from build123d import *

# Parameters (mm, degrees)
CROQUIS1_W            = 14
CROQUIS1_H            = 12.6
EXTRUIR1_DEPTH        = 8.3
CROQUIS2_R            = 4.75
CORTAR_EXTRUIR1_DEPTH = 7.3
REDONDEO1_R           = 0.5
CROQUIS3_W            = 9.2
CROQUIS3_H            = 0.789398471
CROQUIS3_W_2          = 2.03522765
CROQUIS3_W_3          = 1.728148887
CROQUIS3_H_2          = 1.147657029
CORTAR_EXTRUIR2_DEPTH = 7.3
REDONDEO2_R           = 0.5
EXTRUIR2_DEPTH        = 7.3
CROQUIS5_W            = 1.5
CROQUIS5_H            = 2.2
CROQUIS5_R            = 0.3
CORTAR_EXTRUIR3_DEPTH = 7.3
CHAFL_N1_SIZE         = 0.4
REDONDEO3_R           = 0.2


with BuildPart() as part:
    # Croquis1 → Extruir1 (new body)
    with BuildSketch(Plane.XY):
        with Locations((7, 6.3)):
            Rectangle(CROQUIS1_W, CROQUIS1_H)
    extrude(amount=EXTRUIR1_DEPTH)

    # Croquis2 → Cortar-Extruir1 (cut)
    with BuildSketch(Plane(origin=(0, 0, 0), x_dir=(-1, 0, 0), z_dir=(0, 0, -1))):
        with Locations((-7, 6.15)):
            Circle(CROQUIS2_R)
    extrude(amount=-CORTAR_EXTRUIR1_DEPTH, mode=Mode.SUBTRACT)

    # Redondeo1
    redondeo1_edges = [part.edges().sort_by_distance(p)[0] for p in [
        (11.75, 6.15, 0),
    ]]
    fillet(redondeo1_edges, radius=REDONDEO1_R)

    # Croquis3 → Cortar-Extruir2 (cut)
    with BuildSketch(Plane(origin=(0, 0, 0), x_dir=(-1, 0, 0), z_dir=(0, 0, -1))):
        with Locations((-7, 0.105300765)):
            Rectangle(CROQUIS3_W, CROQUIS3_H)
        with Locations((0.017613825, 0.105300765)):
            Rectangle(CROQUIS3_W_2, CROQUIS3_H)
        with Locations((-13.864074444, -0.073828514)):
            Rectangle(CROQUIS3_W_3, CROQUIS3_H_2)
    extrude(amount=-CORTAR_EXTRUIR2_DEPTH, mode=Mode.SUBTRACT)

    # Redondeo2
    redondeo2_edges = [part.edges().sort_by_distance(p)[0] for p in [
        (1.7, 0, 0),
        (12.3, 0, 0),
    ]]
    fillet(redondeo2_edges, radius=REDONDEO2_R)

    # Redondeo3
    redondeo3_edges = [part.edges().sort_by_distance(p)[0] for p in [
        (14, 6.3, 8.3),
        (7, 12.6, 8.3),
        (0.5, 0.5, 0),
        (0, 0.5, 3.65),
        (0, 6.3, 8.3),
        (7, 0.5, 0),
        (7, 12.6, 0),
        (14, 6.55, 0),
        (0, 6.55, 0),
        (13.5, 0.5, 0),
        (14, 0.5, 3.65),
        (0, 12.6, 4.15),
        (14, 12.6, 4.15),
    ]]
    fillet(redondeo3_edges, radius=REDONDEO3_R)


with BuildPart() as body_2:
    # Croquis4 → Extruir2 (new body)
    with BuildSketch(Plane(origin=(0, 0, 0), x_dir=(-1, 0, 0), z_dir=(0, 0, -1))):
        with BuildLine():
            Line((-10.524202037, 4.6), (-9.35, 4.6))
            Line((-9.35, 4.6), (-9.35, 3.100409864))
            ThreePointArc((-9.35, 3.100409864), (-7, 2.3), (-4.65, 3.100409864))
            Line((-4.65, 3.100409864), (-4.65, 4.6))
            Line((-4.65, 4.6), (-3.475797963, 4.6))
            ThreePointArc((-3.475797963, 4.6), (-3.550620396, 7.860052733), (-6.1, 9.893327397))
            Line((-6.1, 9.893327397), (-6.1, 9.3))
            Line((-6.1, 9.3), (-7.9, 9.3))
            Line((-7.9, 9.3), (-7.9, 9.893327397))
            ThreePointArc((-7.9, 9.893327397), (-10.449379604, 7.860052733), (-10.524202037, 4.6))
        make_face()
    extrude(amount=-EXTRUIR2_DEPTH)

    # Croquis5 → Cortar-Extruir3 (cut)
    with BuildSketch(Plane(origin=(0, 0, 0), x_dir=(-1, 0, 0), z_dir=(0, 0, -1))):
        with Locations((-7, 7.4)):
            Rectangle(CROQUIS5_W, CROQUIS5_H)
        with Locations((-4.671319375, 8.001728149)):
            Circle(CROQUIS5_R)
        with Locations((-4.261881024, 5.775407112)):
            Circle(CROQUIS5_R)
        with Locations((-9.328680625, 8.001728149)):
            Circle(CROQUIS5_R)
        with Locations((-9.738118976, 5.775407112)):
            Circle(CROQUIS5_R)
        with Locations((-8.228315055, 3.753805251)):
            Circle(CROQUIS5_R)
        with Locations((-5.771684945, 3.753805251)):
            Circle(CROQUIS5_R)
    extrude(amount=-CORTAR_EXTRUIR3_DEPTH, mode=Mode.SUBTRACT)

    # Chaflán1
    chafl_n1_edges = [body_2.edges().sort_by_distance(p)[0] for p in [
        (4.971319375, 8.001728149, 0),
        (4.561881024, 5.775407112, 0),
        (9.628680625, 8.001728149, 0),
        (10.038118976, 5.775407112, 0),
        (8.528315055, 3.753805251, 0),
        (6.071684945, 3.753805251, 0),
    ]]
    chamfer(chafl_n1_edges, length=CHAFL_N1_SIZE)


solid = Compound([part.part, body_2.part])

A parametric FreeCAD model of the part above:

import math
import FreeCAD as App
import Part
import Sketcher


def edges_at(feature, points):
    """Names of the edges that pass closest to the given points."""
    edges = feature.Shape.Edges
    near = lambda p: min(range(len(edges)), key=lambda i: edges[i].distToShape(Part.Vertex(*p))[0])
    return sorted({f"Edge{near(p) + 1}" for p in points})

doc = App.newDocument("Part")
body = doc.addObject("PartDesign::Body", "Body")

sketch1 = body.newObject("Sketcher::SketchObject", "Sketch")
sketch1.AttachmentSupport = (doc.getObject("XY_Plane"), [""])
sketch1.MapMode = "FlatFace"
sketch1.addGeometry(Part.LineSegment(App.Vector(0, 13, 0), App.Vector(0, 0, 0)), False)
sketch1.addGeometry(Part.LineSegment(App.Vector(0, 0, 0), App.Vector(14, 0, 0)), False)
sketch1.addGeometry(Part.LineSegment(App.Vector(14, 0, 0), App.Vector(14, 13, 0)), False)
sketch1.addGeometry(Part.LineSegment(App.Vector(14, 13, 0), App.Vector(0, 13, 0)), False)
sketch1.addConstraint(Sketcher.Constraint("Coincident", 0, 2, 1, 1))
sketch1.addConstraint(Sketcher.Constraint("Coincident", 1, 2, 2, 1))
sketch1.addConstraint(Sketcher.Constraint("Coincident", 2, 2, 3, 1))
sketch1.addConstraint(Sketcher.Constraint("Coincident", 3, 2, 0, 1))
sketch1.addConstraint(Sketcher.Constraint("Vertical", 0))
sketch1.addConstraint(Sketcher.Constraint("Horizontal", 1))
sketch1.addConstraint(Sketcher.Constraint("Vertical", 2))
sketch1.addConstraint(Sketcher.Constraint("Horizontal", 3))
sketch1.addConstraint(Sketcher.Constraint("Coincident", 0, 2, -1, 1))
sketch1.addConstraint(Sketcher.Constraint("DistanceX", 1, 1, 1, 2, 14.0))
sketch1.addConstraint(Sketcher.Constraint("DistanceY", 0, 2, 0, 1, 12.6))
pad1 = body.newObject("PartDesign::Pad", "Pad")
pad1.Profile = sketch1
pad1.Length = 8.3

sketch2 = body.newObject("Sketcher::SketchObject", "Sketch001")
sketch2.AttachmentSupport = (doc.getObject("XY_Plane"), [""])
sketch2.MapMode = "FlatFace"
sketch2.addGeometry(Part.Circle(App.Vector(7, 6.2, 0), App.Vector(0, 0, 1), 4.8), False)
sketch2.addConstraint(Sketcher.Constraint("Diameter", 0, 9.5))
sketch2.addConstraint(Sketcher.Constraint("DistanceX", -1, 1, 0, 3, 7.0))
sketch2.addConstraint(Sketcher.Constraint("DistanceY", -1, 1, 0, 3, 6.15))
pocket1 = body.newObject("PartDesign::Pocket", "Pocket")
pocket1.Profile = sketch2
pocket1.Length = 7.3
pocket1.Reversed = True
doc.recompute()

fillet = body.newObject("PartDesign::Fillet", "Fillet")
fillet.Base = (pocket1, edges_at(pocket1, [(11.75, 6.15, 0)]))
fillet.Radius = 0.5

sketch3 = body.newObject("Sketcher::SketchObject", "Sketch002")
sketch3.AttachmentSupport = (doc.getObject("XY_Plane"), [""])
sketch3.MapMode = "FlatFace"
sketch3.addGeometry(Part.LineSegment(App.Vector(11.6, 0.5, 0), App.Vector(11.6, -0.3, 0)), False)
sketch3.addGeometry(Part.LineSegment(App.Vector(11.6, -0.3, 0), App.Vector(2.4, -0.3, 0)), False)
sketch3.addGeometry(Part.LineSegment(App.Vector(2.4, -0.3, 0), App.Vector(2.4, 0.5, 0)), False)
sketch3.addGeometry(Part.LineSegment(App.Vector(2.4, 0.5, 0), App.Vector(11.6, 0.5, 0)), False)
sketch3.addGeometry(Part.LineSegment(App.Vector(1, 0.5, 0), App.Vector(1, -0.3, 0)), False)
sketch3.addGeometry(Part.LineSegment(App.Vector(1, -0.3, 0), App.Vector(-1, -0.3, 0)), False)
sketch3.addGeometry(Part.LineSegment(App.Vector(-1, -0.3, 0), App.Vector(-1, 0.5, 0)), False)
sketch3.addGeometry(Part.LineSegment(App.Vector(-1, 0.5, 0), App.Vector(1, 0.5, 0)), False)
sketch3.addGeometry(Part.LineSegment(App.Vector(14.7, 0.5, 0), App.Vector(14.7, -0.6, 0)), False)
sketch3.addGeometry(Part.LineSegment(App.Vector(14.7, -0.6, 0), App.Vector(13, -0.6, 0)), False)
sketch3.addGeometry(Part.LineSegment(App.Vector(13, -0.6, 0), App.Vector(13, 0.5, 0)), False)
sketch3.addGeometry(Part.LineSegment(App.Vector(13, 0.5, 0), App.Vector(14.7, 0.5, 0)), False)
sketch3.addConstraint(Sketcher.Constraint("Coincident", 0, 2, 1, 1))
sketch3.addConstraint(Sketcher.Constraint("Coincident", 1, 2, 2, 1))
sketch3.addConstraint(Sketcher.Constraint("Coincident", 2, 2, 3, 1))
sketch3.addConstraint(Sketcher.Constraint("Coincident", 3, 2, 0, 1))
sketch3.addConstraint(Sketcher.Constraint("Coincident", 4, 2, 5, 1))
sketch3.addConstraint(Sketcher.Constraint("Coincident", 5, 2, 6, 1))
sketch3.addConstraint(Sketcher.Constraint("Coincident", 6, 2, 7, 1))
sketch3.addConstraint(Sketcher.Constraint("Coincident", 7, 2, 4, 1))
sketch3.addConstraint(Sketcher.Constraint("Coincident", 8, 2, 9, 1))
sketch3.addConstraint(Sketcher.Constraint("Coincident", 9, 2, 10, 1))
sketch3.addConstraint(Sketcher.Constraint("Coincident", 10, 2, 11, 1))
sketch3.addConstraint(Sketcher.Constraint("Coincident", 11, 2, 8, 1))
sketch3.addConstraint(Sketcher.Constraint("Vertical", 0))
sketch3.addConstraint(Sketcher.Constraint("Horizontal", 1))
sketch3.addConstraint(Sketcher.Constraint("Vertical", 2))
sketch3.addConstraint(Sketcher.Constraint("Horizontal", 3))
sketch3.addConstraint(Sketcher.Constraint("Vertical", 4))
sketch3.addConstraint(Sketcher.Constraint("Horizontal", 5))
sketch3.addConstraint(Sketcher.Constraint("Vertical", 6))
sketch3.addConstraint(Sketcher.Constraint("Horizontal", 7))
sketch3.addConstraint(Sketcher.Constraint("Vertical", 8))
sketch3.addConstraint(Sketcher.Constraint("Horizontal", 9))
sketch3.addConstraint(Sketcher.Constraint("Vertical", 10))
sketch3.addConstraint(Sketcher.Constraint("Horizontal", 11))
sketch3.addConstraint(Sketcher.Constraint("Horizontal", 1, 2, 4, 2))
sketch3.addConstraint(Sketcher.Constraint("Horizontal", 3, 2, 6, 2))
sketch3.addConstraint(Sketcher.Constraint("Horizontal", 7, 2, 10, 2))
sketch3.addConstraint(Sketcher.Constraint("DistanceX", 1, 2, 1, 1, 9.2))
sketch3.addConstraint(Sketcher.Constraint("DistanceX", -1, 1, 4, 2, 1.0))
sketch3.addConstraint(Sketcher.Constraint("DistanceX", -1, 1, 9, 2, 13.0))
sketch3.addConstraint(Sketcher.Constraint("DistanceX", -1, 1, 0, 2, 11.6))
sketch3.addConstraint(Sketcher.Constraint("DistanceY", -1, 1, 2, 2, 0.5))
sketch3.addConstraint(Sketcher.Constraint("DistanceY", 0, 2, 0, 1, 0.789398))
sketch3.addConstraint(Sketcher.Constraint("DistanceX", 9, 2, 9, 1, 1.728149))
sketch3.addConstraint(Sketcher.Constraint("DistanceX", 5, 2, 5, 1, 2.035228))
sketch3.addConstraint(Sketcher.Constraint("DistanceY", 8, 2, 8, 1, 1.147657))
pocket2 = body.newObject("PartDesign::Pocket", "Pocket001")
pocket2.Profile = sketch3
pocket2.Length = 7.3
pocket2.Reversed = True
doc.recompute()

fillet2 = body.newObject("PartDesign::Fillet", "Fillet001")
fillet2.Base = (pocket2, edges_at(pocket2, [(1.7, 0, 0), (12.3, 0, 0)]))
fillet2.Radius = 0.5
doc.recompute()

fillet3 = body.newObject("PartDesign::Fillet", "Fillet002")
fillet3.Base = (fillet2, edges_at(fillet2, [
    (14, 6.3, 8.3),
    (7, 12.6, 8.3),
    (0.5, 0.5, 0),
    (0, 0.5, 3.65),
    (0, 6.3, 8.3),
    (7, 0.5, 0),
    (7, 12.6, 0),
    (14, 6.55, 0),
    (0, 6.55, 0),
    (13.5, 0.5, 0),
    (14, 0.5, 3.65),
    (0, 12.6, 4.15),
    (14, 12.6, 4.15),
]))
fillet3.Radius = 0.2
body2 = doc.addObject("PartDesign::Body", "Body001")

sketch4 = body2.newObject("Sketcher::SketchObject", "Sketch003")
sketch4.AttachmentSupport = (doc.getObject("XY_Plane001"), [""])
sketch4.MapMode = "FlatFace"
sketch4.addGeometry(Part.LineSegment(App.Vector(10.5, 4.6, 0), App.Vector(9.3, 4.6, 0)), False)
sketch4.addGeometry(Part.LineSegment(App.Vector(9.3, 4.6, 0), App.Vector(9.3, 3.1, 0)), False)
sketch4.addGeometry(Part.ArcOfCircle(Part.Circle(App.Vector(7, 6.1, 0), App.Vector(0, 0, 1), 3.8), math.radians(-128), math.radians(-52)), False)
sketch4.addGeometry(Part.LineSegment(App.Vector(4.7, 3.1, 0), App.Vector(4.7, 4.6, 0)), False)
sketch4.addGeometry(Part.LineSegment(App.Vector(4.7, 4.6, 0), App.Vector(3.5, 4.6, 0)), False)
sketch4.addGeometry(Part.ArcOfCircle(Part.Circle(App.Vector(7, 6.2, 0), App.Vector(0, 0, 1), 3.8), math.radians(104), math.radians(204)), False)
sketch4.addGeometry(Part.LineSegment(App.Vector(6.1, 9.9, 0), App.Vector(6.1, 9.3, 0)), False)
sketch4.addGeometry(Part.LineSegment(App.Vector(6.1, 9.3, 0), App.Vector(7.9, 9.3, 0)), False)
sketch4.addGeometry(Part.LineSegment(App.Vector(7.9, 9.3, 0), App.Vector(7.9, 9.9, 0)), False)
sketch4.addGeometry(Part.ArcOfCircle(Part.Circle(App.Vector(7, 6.2, 0), App.Vector(0, 0, 1), 3.8), math.radians(-24), math.radians(76)), False)
sketch4.addConstraint(Sketcher.Constraint("Coincident", 0, 2, 1, 1))
sketch4.addConstraint(Sketcher.Constraint("Coincident", 1, 2, 2, 2))
sketch4.addConstraint(Sketcher.Constraint("Coincident", 2, 1, 3, 1))
sketch4.addConstraint(Sketcher.Constraint("Coincident", 3, 2, 4, 1))
sketch4.addConstraint(Sketcher.Constraint("Coincident", 4, 2, 5, 2))
sketch4.addConstraint(Sketcher.Constraint("Coincident", 5, 1, 6, 1))
sketch4.addConstraint(Sketcher.Constraint("Coincident", 6, 2, 7, 1))
sketch4.addConstraint(Sketcher.Constraint("Coincident", 7, 2, 8, 1))
sketch4.addConstraint(Sketcher.Constraint("Coincident", 8, 2, 9, 2))
sketch4.addConstraint(Sketcher.Constraint("Coincident", 9, 1, 0, 1))
sketch4.addConstraint(Sketcher.Constraint("Horizontal", 0))
sketch4.addConstraint(Sketcher.Constraint("Vertical", 1))
sketch4.addConstraint(Sketcher.Constraint("Vertical", 3))
sketch4.addConstraint(Sketcher.Constraint("Horizontal", 4))
sketch4.addConstraint(Sketcher.Constraint("Vertical", 6))
sketch4.addConstraint(Sketcher.Constraint("Horizontal", 7))
sketch4.addConstraint(Sketcher.Constraint("Vertical", 8))
sketch4.addConstraint(Sketcher.Constraint("Coincident", 5, 3, 2, 3))
sketch4.addConstraint(Sketcher.Constraint("Coincident", 9, 3, 2, 3))
sketch4.addConstraint(Sketcher.Constraint("Equal", 2, 5))
sketch4.addConstraint(Sketcher.Constraint("Equal", 5, 9))
sketch4.addConstraint(Sketcher.Constraint("Horizontal", 1, 2, 2, 1))
sketch4.addConstraint(Sketcher.Constraint("Horizontal", 0, 2, 3, 2))
sketch4.addConstraint(Sketcher.Constraint("Horizontal", 5, 1, 8, 2))
sketch4.addConstraint(Sketcher.Constraint("Radius", 2, 3.85))
sketch4.addConstraint(Sketcher.Constraint("DistanceX", 7, 1, 7, 2, 1.8))
sketch4.addConstraint(Sketcher.Constraint("DistanceX", -1, 1, 2, 3, 7.0))
sketch4.addConstraint(Sketcher.Constraint("DistanceY", -1, 1, 0, 2, 4.6))
sketch4.addConstraint(Sketcher.Constraint("DistanceY", -1, 1, 6, 2, 9.3))
sketch4.addConstraint(Sketcher.Constraint("DistanceX", 2, 1, 1, 2, 4.7))
sketch4.addConstraint(Sketcher.Constraint("DistanceY", -1, 1, 2, 3, 6.15))
pad2 = body2.newObject("PartDesign::Pad", "Pad001")
pad2.Profile = sketch4
pad2.Length = 7.3

sketch5 = body2.newObject("Sketcher::SketchObject", "Sketch004")
sketch5.AttachmentSupport = (doc.getObject("XY_Plane001"), [""])
sketch5.MapMode = "FlatFace"
sketch5.addGeometry(Part.LineSegment(App.Vector(7.75, 8.5, 0), App.Vector(7.75, 6.3, 0)), False)
sketch5.addGeometry(Part.LineSegment(App.Vector(7.75, 6.3, 0), App.Vector(6.25, 6.3, 0)), False)
sketch5.addGeometry(Part.LineSegment(App.Vector(6.25, 6.3, 0), App.Vector(6.25, 8.5, 0)), False)
sketch5.addGeometry(Part.LineSegment(App.Vector(6.25, 8.5, 0), App.Vector(7.75, 8.5, 0)), False)
sketch5.addGeometry(Part.Circle(App.Vector(4.67, 8, 0), App.Vector(0, 0, 1), 0.3), False)
sketch5.addGeometry(Part.Circle(App.Vector(4.26, 5.78, 0), App.Vector(0, 0, 1), 0.3), False)
sketch5.addGeometry(Part.Circle(App.Vector(9.33, 8, 0), App.Vector(0, 0, 1), 0.3), False)
sketch5.addGeometry(Part.Circle(App.Vector(9.74, 5.78, 0), App.Vector(0, 0, 1), 0.3), False)
sketch5.addGeometry(Part.Circle(App.Vector(8.23, 3.75, 0), App.Vector(0, 0, 1), 0.3), False)
sketch5.addGeometry(Part.Circle(App.Vector(5.77, 3.75, 0), App.Vector(0, 0, 1), 0.3), False)
sketch5.addConstraint(Sketcher.Constraint("Coincident", 0, 2, 1, 1))
sketch5.addConstraint(Sketcher.Constraint("Coincident", 1, 2, 2, 1))
sketch5.addConstraint(Sketcher.Constraint("Coincident", 2, 2, 3, 1))
sketch5.addConstraint(Sketcher.Constraint("Coincident", 3, 2, 0, 1))
sketch5.addConstraint(Sketcher.Constraint("Vertical", 0))
sketch5.addConstraint(Sketcher.Constraint("Horizontal", 1))
sketch5.addConstraint(Sketcher.Constraint("Vertical", 2))
sketch5.addConstraint(Sketcher.Constraint("Horizontal", 3))
sketch5.addConstraint(Sketcher.Constraint("Equal", 4, 5))
sketch5.addConstraint(Sketcher.Constraint("Equal", 5, 6))
sketch5.addConstraint(Sketcher.Constraint("Equal", 6, 7))
sketch5.addConstraint(Sketcher.Constraint("Equal", 7, 8))
sketch5.addConstraint(Sketcher.Constraint("Equal", 8, 9))
sketch5.addConstraint(Sketcher.Constraint("Horizontal", 4, 3, 6, 3))
sketch5.addConstraint(Sketcher.Constraint("Horizontal", 5, 3, 7, 3))
sketch5.addConstraint(Sketcher.Constraint("Horizontal", 8, 3, 9, 3))
sketch5.addConstraint(Sketcher.Constraint("Diameter", 4, 0.6))
sketch5.addConstraint(Sketcher.Constraint("DistanceX", 1, 2, 1, 1, 1.5))
sketch5.addConstraint(Sketcher.Constraint("DistanceY", 0, 2, 0, 1, 2.2))
sketch5.addConstraint(Sketcher.Constraint("DistanceY", -1, 1, 0, 2, 6.3))
sketch5.addConstraint(Sketcher.Constraint("DistanceX", -1, 1, 0, 2, 7.75))
sketch5.addConstraint(Sketcher.Constraint("DistanceX", 5, 3, 6, 3, 5.0668))
sketch5.addConstraint(Sketcher.Constraint("DistanceX", 4, 3, 7, 3, 5.0668))
sketch5.addConstraint(Sketcher.Constraint("DistanceY", 8, 3, 7, 3, 2.021602))
sketch5.addConstraint(Sketcher.Constraint("DistanceX", -1, 1, 4, 3, 4.671319))
sketch5.addConstraint(Sketcher.Constraint("DistanceY", -1, 1, 4, 3, 8.001728))
sketch5.addConstraint(Sketcher.Constraint("DistanceX", -1, 1, 5, 3, 4.261881))
sketch5.addConstraint(Sketcher.Constraint("DistanceY", 5, 3, 4, 3, 2.226321))
sketch5.addConstraint(Sketcher.Constraint("DistanceX", 9, 3, 8, 3, 2.45663))
sketch5.addConstraint(Sketcher.Constraint("DistanceX", -1, 1, 8, 3, 8.228315))
pocket3 = body2.newObject("PartDesign::Pocket", "Pocket002")
pocket3.Profile = sketch5
pocket3.Length = 7.3
pocket3.Reversed = True
doc.recompute()

chamfer = body2.newObject("PartDesign::Chamfer", "Chamfer")
chamfer.Base = (pocket3, edges_at(pocket3, [
    (4.971, 8.002, 0),
    (4.562, 5.775, 0),
    (9.629, 8.002, 0),
    (10.038, 5.775, 0),
    (8.528, 3.754, 0),
    (6.072, 3.754, 0),
]))
chamfer.Size = 0.4

doc.recompute()
